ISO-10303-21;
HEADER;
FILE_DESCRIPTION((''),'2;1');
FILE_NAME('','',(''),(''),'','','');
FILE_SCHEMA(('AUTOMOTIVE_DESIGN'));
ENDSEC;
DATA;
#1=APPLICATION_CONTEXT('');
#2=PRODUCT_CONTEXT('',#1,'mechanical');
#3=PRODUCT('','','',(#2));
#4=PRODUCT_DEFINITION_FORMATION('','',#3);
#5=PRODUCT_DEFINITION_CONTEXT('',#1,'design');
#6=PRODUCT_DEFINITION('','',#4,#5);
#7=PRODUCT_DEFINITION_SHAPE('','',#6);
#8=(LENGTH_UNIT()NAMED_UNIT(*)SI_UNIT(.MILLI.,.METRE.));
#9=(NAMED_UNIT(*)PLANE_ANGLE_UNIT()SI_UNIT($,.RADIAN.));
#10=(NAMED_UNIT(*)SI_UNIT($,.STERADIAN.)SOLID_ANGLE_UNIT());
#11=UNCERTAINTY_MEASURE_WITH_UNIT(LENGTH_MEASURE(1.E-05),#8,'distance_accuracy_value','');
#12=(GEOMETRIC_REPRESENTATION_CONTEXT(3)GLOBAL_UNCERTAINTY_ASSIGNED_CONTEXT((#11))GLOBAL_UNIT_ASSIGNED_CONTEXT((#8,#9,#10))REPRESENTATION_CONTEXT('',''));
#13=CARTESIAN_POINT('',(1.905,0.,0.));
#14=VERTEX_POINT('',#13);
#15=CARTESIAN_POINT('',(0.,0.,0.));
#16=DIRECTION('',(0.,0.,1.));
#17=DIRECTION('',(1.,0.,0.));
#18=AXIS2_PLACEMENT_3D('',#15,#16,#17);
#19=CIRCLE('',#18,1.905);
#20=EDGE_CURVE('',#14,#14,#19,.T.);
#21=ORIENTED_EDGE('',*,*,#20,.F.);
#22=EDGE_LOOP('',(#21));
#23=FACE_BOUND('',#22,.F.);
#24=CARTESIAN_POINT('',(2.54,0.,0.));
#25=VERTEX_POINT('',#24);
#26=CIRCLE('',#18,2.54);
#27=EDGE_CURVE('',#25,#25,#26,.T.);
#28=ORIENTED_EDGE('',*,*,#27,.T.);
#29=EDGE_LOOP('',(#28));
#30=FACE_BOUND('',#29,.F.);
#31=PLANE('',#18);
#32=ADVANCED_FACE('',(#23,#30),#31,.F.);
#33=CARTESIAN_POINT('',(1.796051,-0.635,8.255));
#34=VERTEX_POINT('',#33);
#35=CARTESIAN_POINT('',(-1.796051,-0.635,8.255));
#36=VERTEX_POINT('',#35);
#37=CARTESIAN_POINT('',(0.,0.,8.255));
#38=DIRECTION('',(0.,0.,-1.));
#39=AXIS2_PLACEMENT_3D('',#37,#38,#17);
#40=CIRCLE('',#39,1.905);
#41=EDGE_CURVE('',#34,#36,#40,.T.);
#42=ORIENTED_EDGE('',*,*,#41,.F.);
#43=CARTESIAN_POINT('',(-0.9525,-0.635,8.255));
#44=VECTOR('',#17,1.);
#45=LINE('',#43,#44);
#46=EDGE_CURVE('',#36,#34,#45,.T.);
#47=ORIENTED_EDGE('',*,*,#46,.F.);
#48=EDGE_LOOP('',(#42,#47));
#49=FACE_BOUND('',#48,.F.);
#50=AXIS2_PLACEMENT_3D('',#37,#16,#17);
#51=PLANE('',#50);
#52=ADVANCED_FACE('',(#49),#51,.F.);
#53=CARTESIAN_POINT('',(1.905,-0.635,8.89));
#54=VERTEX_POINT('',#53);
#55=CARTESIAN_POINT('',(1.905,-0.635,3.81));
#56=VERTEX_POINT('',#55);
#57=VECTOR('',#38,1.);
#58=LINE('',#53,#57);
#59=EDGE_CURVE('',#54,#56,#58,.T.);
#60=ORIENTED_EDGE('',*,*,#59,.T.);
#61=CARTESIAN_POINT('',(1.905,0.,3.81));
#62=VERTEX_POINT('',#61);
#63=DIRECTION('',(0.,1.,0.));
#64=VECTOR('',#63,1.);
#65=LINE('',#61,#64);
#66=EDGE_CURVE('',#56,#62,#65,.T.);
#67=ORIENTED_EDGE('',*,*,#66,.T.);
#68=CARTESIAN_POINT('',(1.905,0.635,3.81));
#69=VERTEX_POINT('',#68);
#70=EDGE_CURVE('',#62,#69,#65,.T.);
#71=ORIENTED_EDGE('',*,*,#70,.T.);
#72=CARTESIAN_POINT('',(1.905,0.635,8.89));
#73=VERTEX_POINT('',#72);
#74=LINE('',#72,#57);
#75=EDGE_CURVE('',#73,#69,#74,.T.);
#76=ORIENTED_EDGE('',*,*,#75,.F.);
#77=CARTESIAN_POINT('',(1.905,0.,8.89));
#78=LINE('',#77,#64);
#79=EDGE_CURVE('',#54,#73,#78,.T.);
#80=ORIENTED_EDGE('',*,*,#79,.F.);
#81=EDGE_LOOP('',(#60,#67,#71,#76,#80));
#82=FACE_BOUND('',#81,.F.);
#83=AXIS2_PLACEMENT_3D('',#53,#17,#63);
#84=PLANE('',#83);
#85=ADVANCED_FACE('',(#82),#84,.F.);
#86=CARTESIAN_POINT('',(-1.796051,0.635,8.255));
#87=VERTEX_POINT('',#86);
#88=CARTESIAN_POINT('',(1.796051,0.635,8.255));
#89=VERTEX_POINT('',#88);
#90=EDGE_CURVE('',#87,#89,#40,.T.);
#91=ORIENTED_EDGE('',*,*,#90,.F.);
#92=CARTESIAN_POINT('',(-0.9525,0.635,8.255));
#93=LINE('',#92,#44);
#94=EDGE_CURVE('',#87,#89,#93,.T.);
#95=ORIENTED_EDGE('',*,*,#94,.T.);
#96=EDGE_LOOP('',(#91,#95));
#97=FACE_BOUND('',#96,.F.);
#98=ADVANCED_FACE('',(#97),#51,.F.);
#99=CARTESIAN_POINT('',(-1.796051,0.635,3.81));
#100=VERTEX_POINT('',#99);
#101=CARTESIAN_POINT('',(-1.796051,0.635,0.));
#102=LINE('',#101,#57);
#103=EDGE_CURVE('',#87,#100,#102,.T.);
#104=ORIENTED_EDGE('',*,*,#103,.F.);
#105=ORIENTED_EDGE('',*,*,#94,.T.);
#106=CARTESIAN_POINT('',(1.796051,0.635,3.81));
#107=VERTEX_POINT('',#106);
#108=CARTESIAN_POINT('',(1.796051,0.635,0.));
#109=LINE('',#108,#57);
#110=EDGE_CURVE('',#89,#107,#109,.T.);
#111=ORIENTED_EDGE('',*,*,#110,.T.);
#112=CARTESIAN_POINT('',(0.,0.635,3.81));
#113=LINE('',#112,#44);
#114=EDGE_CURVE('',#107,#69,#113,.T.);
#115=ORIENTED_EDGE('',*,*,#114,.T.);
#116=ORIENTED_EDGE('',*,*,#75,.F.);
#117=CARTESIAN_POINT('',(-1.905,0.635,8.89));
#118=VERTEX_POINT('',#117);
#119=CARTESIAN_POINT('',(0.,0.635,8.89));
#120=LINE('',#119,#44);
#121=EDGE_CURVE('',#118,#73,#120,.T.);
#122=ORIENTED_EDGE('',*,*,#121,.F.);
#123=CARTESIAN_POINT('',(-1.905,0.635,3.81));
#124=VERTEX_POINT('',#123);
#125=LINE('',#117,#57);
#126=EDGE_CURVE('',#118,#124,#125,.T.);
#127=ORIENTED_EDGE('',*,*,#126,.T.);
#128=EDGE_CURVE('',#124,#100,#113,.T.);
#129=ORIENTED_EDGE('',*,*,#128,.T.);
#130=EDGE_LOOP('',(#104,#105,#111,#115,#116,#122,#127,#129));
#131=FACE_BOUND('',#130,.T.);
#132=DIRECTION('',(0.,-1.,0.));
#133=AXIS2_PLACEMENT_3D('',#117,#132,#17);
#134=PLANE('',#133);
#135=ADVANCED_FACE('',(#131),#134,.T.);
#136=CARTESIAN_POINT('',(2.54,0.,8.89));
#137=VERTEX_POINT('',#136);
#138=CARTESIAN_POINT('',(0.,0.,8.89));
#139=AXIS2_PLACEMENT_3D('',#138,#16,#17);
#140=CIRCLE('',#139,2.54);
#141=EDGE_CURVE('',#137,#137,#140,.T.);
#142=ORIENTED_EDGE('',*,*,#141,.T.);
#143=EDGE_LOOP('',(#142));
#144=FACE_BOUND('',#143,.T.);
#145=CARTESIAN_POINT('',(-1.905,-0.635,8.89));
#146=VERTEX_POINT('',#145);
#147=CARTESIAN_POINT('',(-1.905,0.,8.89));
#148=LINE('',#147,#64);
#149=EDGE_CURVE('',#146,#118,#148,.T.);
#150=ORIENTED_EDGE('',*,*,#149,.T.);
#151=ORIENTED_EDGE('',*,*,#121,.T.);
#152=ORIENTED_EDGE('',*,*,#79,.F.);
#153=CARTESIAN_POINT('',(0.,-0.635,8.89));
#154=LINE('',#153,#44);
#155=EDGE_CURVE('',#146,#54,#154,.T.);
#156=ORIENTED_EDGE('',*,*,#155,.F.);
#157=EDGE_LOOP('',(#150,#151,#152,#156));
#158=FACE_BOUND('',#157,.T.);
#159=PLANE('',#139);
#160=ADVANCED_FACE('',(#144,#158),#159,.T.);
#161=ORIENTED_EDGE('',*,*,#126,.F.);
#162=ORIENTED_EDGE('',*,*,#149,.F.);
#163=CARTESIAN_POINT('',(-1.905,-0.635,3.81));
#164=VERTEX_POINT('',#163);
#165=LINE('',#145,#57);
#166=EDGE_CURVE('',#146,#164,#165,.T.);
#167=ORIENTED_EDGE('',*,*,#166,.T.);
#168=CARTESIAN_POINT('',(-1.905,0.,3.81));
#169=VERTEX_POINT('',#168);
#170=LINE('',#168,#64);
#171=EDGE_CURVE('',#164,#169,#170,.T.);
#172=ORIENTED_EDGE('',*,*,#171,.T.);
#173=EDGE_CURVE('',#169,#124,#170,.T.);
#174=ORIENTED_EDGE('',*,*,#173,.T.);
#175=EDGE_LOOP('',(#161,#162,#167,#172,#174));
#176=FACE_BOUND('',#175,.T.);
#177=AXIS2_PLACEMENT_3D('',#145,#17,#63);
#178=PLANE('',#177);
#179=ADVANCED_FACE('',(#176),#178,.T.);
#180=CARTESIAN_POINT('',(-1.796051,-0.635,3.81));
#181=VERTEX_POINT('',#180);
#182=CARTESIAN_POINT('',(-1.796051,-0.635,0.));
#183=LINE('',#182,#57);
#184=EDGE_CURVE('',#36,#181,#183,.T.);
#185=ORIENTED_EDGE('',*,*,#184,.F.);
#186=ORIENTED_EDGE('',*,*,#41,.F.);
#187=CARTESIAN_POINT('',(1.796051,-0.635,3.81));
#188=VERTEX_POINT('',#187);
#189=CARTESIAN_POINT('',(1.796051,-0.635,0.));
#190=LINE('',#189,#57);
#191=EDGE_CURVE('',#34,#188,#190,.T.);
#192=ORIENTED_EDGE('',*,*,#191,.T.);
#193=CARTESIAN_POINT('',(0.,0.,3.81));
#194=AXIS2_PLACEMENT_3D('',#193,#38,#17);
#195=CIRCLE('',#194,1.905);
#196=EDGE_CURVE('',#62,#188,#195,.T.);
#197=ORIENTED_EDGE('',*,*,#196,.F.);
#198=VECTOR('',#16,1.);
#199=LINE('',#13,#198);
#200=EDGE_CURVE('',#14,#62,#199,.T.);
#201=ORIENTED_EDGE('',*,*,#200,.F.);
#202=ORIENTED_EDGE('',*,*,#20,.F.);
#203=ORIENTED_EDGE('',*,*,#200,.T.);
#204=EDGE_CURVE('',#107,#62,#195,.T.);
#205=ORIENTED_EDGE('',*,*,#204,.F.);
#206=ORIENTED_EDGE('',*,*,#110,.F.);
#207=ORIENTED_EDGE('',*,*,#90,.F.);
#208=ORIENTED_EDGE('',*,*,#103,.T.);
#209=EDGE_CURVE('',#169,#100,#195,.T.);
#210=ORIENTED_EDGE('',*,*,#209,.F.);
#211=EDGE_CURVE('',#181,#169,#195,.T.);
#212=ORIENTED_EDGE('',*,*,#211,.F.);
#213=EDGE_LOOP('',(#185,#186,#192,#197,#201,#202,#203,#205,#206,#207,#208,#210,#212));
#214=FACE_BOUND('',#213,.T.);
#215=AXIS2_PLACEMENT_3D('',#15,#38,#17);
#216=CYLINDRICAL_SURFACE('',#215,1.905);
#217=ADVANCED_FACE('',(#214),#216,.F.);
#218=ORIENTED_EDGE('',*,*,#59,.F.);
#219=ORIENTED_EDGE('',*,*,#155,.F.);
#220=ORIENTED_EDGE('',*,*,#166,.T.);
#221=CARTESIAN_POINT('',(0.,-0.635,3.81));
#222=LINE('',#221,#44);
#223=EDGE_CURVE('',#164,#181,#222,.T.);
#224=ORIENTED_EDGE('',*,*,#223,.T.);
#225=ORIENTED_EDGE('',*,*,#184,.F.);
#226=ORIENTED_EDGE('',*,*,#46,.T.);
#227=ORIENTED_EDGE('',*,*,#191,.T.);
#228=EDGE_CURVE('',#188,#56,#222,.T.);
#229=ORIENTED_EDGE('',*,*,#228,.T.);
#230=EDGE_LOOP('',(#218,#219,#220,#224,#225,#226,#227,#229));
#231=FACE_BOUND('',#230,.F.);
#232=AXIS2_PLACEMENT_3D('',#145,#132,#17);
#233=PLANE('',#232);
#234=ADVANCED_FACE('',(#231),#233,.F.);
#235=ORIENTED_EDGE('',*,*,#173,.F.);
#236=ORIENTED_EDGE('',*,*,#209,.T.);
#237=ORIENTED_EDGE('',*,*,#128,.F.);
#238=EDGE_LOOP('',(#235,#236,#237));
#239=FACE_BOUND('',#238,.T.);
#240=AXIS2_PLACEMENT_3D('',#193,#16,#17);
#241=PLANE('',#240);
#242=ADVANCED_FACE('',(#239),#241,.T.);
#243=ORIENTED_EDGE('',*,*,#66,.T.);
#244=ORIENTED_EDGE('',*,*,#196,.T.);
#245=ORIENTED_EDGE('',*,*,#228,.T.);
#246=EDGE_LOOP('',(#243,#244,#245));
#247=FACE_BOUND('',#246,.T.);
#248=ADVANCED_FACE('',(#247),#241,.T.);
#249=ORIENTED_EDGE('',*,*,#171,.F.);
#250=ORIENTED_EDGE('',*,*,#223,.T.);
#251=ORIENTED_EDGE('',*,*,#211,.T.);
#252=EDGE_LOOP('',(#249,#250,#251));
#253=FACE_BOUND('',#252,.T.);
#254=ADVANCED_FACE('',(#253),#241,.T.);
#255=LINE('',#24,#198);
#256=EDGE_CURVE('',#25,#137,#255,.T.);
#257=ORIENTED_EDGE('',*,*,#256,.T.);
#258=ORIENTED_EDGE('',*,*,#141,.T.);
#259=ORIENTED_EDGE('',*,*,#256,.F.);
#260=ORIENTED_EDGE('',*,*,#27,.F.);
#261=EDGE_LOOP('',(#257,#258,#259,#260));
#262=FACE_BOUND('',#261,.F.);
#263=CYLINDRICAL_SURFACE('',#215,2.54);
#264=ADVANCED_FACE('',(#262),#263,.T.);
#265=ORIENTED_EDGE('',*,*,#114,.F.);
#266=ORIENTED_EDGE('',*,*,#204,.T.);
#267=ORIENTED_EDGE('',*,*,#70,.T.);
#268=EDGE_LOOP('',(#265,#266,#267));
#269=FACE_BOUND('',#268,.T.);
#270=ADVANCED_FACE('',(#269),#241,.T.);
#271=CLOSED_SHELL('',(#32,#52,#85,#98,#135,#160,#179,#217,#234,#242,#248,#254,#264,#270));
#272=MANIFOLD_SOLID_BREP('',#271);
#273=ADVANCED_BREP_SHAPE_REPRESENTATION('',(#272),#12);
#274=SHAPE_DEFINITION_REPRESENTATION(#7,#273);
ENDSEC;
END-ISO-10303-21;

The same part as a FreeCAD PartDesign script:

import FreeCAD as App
import Part
import Sketcher
from FreeCAD import Vector
Q = App.Units.Quantity


def faces_at(feature, points):
    """Names of the faces that lie closest to the given points."""
    faces = feature.Shape.Faces
    near = lambda p: min(range(len(faces)), key=lambda i: faces[i].distToShape(Part.Vertex(*p))[0])
    return sorted({f"Face{near(p) + 1}" for p in points})


def add_polygon(sketch, points):
    """Adds a closed chain of lines whose ends are joined by coincident constraints."""
    first, n = sketch.GeometryCount, len(points)
    for a, b in zip(points, points[1:] + points[:1]):
        sketch.addGeometry(Part.LineSegment(App.Vector(*a, 0), App.Vector(*b, 0)), False)
    for i in range(n):
        sketch.addConstraint(Sketcher.Constraint("Coincident", first + i, 2, first + (i + 1) % n, 1))

doc = App.newDocument("Part")
params = doc.addObject("Spreadsheet::Sheet", "Params")
for row, (alias, value) in enumerate([
    ("sketch1_diameter", "0.2 in"),
    ("pad1_length", "0.35 in"),
    ("thickness_wall", "0.025 in"),
    ("sketch2_width", "0.15 in"),
    ("sketch2_height", "0.05 in"),
    ("pocket1_length", "0.2 in"),
], start=1):
    params.set(f"A{row}", alias)
    params.set(f"B{row}", "=" + value)
    params.setAlias(f"B{row}", alias)

body = doc.addObject("PartDesign::Body", "Body")

sketch1 = body.newObject("Sketcher::SketchObject", "Sketch")
sketch1.AttachmentSupport = (doc.getObject("XY_Plane"), [""])
sketch1.MapMode = "FlatFace"
sketch1.addGeometry(Part.Circle(Vector(0, 0, 0), Vector(0, 0, 1), 2.5), False)
sketch1.addConstraint(Sketcher.Constraint("Coincident", 0, 3, -1, 1))
sketch1.addConstraint(Sketcher.Constraint("Diameter", 0, Q("0.2 in")))
sketch1.setExpression("Constraints[1]", "Params.sketch1_diameter")
pad1 = body.newObject("PartDesign::Pad", "Pad")
pad1.Profile = sketch1
pad1.setExpression("Length", "Params.pad1_length")
doc.recompute()

thickness = body.newObject("PartDesign::Thickness", "Thickness")
thickness.Base = (pad1, faces_at(pad1, [(0, 0, 0)]))
thickness.setExpression("Value", "Params.thickness_wall")
thickness.Reversed = True
thickness.Join = "Arc"

sketch2 = body.newObject("Sketcher::SketchObject", "Sketch001")
sketch2.AttachmentSupport = (doc.getObject("XY_Plane"), [""])
sketch2.MapMode = "FlatFace"
sketch2.AttachmentOffset = App.Placement(Vector(0, 0, 0.35 * 25.4), App.Rotation())
add_polygon(sketch2, [(-1.9, 0.6), (-1.9, -0.6), (1.9, -0.6), (1.9, 0.6)])
sketch2.addConstraint(Sketcher.Constraint("Vertical", 0))
sketch2.addConstraint(Sketcher.Constraint("Horizontal", 1))
sketch2.addConstraint(Sketcher.Constraint("Vertical", 2))
sketch2.addConstraint(Sketcher.Constraint("Horizontal", 3))
sketch2.addConstraint(Sketcher.Constraint("Symmetric", 0, 2, 2, 2, -1, 1))
sketch2.addConstraint(Sketcher.Constraint("DistanceX", 1, 1, 1, 2, Q("0.15 in")))
sketch2.addConstraint(Sketcher.Constraint("DistanceY", 0, 2, 0, 1, Q("0.05 in")))
sketch2.setExpression("Constraints[9]", "Params.sketch2_width")
sketch2.setExpression("Constraints[10]", "Params.sketch2_height")
pocket1 = body.newObject("PartDesign::Pocket", "Pocket")
pocket1.Profile = sketch2
pocket1.setExpression("Length", "Params.pocket1_length")

doc.recompute()
